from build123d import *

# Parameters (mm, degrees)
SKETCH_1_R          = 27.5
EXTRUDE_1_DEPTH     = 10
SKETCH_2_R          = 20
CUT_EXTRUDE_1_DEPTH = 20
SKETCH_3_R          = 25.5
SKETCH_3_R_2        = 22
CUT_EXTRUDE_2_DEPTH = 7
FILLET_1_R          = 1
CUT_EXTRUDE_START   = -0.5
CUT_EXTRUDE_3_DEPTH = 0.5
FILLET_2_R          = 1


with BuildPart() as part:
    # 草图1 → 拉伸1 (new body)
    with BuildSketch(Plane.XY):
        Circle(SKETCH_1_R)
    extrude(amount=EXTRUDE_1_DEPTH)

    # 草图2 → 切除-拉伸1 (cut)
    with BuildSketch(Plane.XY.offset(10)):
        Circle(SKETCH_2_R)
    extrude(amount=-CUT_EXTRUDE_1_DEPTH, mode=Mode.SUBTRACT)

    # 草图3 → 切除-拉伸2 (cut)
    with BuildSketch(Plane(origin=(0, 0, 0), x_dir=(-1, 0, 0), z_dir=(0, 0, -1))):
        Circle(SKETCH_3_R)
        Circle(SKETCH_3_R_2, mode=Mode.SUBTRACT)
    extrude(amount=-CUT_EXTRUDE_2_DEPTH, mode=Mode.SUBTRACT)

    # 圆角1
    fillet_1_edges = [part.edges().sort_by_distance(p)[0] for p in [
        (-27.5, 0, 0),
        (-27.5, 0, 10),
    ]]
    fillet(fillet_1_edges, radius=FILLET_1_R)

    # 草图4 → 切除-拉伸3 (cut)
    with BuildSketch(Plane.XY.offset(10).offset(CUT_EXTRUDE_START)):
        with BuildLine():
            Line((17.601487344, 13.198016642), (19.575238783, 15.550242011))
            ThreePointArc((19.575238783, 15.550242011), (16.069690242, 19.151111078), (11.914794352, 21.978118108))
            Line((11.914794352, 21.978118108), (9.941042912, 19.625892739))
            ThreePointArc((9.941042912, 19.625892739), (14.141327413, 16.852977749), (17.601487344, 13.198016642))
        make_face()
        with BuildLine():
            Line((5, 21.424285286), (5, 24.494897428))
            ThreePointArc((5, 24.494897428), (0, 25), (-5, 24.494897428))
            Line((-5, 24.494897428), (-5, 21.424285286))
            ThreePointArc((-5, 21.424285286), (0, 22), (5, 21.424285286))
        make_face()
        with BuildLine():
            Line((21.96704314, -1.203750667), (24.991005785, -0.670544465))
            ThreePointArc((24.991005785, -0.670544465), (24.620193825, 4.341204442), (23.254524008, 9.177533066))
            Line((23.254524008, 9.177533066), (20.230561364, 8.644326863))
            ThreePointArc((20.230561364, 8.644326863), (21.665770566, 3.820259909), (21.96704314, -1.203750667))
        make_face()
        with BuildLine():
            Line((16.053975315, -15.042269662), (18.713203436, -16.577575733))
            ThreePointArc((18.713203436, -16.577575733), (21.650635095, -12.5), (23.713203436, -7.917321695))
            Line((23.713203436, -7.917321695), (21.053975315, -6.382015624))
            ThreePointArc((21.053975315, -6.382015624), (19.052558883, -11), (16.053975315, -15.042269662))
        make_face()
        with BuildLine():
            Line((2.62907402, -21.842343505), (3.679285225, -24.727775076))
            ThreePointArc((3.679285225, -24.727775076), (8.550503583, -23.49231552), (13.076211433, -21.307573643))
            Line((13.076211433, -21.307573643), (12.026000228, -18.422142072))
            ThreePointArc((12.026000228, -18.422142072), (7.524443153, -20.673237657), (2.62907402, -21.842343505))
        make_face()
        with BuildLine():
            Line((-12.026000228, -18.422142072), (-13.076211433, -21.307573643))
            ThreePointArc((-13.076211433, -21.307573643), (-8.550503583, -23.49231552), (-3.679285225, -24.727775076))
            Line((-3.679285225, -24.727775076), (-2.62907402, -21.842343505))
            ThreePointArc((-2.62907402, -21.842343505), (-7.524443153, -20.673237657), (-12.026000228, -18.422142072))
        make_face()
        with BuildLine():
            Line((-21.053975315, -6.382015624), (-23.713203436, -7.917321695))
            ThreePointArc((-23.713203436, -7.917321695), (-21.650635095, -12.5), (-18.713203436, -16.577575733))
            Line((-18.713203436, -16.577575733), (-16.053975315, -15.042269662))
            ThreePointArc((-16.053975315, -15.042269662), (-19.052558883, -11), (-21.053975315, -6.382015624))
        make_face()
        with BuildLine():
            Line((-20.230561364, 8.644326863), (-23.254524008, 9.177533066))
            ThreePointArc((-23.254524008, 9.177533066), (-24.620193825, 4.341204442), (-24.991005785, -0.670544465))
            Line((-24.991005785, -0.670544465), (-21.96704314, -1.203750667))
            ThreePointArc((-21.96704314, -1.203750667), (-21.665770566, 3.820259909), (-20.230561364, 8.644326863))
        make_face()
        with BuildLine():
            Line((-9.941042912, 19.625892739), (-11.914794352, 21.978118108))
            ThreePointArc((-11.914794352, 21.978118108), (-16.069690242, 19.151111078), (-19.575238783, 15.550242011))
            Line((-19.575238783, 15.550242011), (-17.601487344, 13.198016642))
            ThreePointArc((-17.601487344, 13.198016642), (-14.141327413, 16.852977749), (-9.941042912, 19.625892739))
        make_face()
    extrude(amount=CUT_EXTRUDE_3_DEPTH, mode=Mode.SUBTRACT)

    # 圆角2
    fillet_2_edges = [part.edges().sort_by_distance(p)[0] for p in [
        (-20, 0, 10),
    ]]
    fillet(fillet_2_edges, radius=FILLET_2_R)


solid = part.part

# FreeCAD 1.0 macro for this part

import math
import FreeCAD as App
import Part
import Sketcher
Q = App.Units.Quantity


def edges_at(feature, points):
    """Names of the edges that pass closest to the given points."""
    edges = feature.Shape.Edges
    near = lambda p: min(range(len(edges)), key=lambda i: edges[i].distToShape(Part.Vertex(*p))[0])
    return sorted({f"Edge{near(p) + 1}" for p in points})

doc = App.newDocument("Part")
body = doc.addObject("PartDesign::Body", "Body")

sketch1 = body.newObject("Sketcher::SketchObject", "Sketch")
sketch1.AttachmentSupport = (doc.getObject("XY_Plane"), [""])
sketch1.MapMode = "FlatFace"
sketch1.addGeometry(Part.Circle(App.Vector(0, 0, 0), App.Vector(0, 0, 1), 28), False)
sketch1.addConstraint(Sketcher.Constraint("Coincident", 0, 3, -1, 1))
sketch1.addConstraint(Sketcher.Constraint("Diameter", 0, 55.0))
pad1 = body.newObject("PartDesign::Pad", "Pad")
pad1.Profile = sketch1
pad1.Length = 10

sketch2 = body.newObject("Sketcher::SketchObject", "Sketch001")
sketch2.AttachmentSupport = (doc.getObject("XY_Plane"), [""])
sketch2.MapMode = "FlatFace"
sketch2.AttachmentOffset = App.Placement(App.Vector(0, 0, 10), App.Rotation())
sketch2.addGeometry(Part.Circle(App.Vector(0, 0, 0), App.Vector(0, 0, 1), 20), False)
sketch2.addConstraint(Sketcher.Constraint("Coincident", 0, 3, -1, 1))
sketch2.addConstraint(Sketcher.Constraint("Diameter", 0, 40.0))
pocket1 = body.newObject("PartDesign::Pocket", "Pocket")
pocket1.Profile = sketch2
pocket1.Length = 20

sketch3 = body.newObject("Sketcher::SketchObject", "Sketch002")
sketch3.AttachmentSupport = (doc.getObject("XY_Plane"), [""])
sketch3.MapMode = "FlatFace"
sketch3.addGeometry(Part.Circle(App.Vector(0, 0, 0), App.Vector(0, 0, 1), 26), False)
sketch3.addGeometry(Part.Circle(App.Vector(0, 0, 0), App.Vector(0, 0, 1), 22), False)
sketch3.addConstraint(Sketcher.Constraint("Coincident", 0, 3, -1, 1))
sketch3.addConstraint(Sketcher.Constraint("Coincident", 1, 3, -1, 1))
sketch3.addConstraint(Sketcher.Constraint("Diameter", 0, 51.0))
sketch3.addConstraint(Sketcher.Constraint("Diameter", 1, 44.0))
pocket2 = body.newObject("PartDesign::Pocket", "Pocket001")
pocket2.Profile = sketch3
pocket2.Length = 7
pocket2.Reversed = True
doc.recompute()

fillet = body.newObject("PartDesign::Fillet", "Fillet")
fillet.Base = (pocket2, edges_at(pocket2, [(-27.5, 0, 0), (-27.5, 0, 10)]))
fillet.Radius = 1

sketch4 = body.newObject("Sketcher::SketchObject", "Sketch003")
sketch4.AttachmentSupport = (doc.getObject("XY_Plane"), [""])
sketch4.MapMode = "FlatFace"
sketch4.AttachmentOffset = App.Placement(App.Vector(0, 0, 9.5), App.Rotation())
sketch4.addGeometry(Part.LineSegment(App.Vector(17.6, 13.2, 0), App.Vector(19.6, 15.6, 0)), False)
sketch4.addGeometry(Part.ArcOfCircle(Part.Circle(App.Vector(0, 0, 0), App.Vector(0, 0, 1), 25), math.radians(38), math.radians(62)), False)
sketch4.addGeometry(Part.LineSegment(App.Vector(11.9, 22, 0), App.Vector(9.9, 19.6, 0)), False)
sketch4.addGeometry(Part.ArcOfCircle(Part.Circle(App.Vector(0, 0, 0), App.Vector(0, 0, 1), 22), math.radians(37), math.radians(63)), False)
sketch4.addGeometry(Part.LineSegment(App.Vector(5, 21.4, 0), App.Vector(5, 24.5, 0)), False)
sketch4.addGeometry(Part.ArcOfCircle(Part.Circle(App.Vector(0, 0, 0), App.Vector(0, 0, 1), 25), math.radians(78), math.radians(102)), False)
sketch4.addGeometry(Part.LineSegment(App.Vector(-5, 24.5, 0), App.Vector(-5, 21.4, 0)), False)
sketch4.addGeometry(Part.ArcOfCircle(Part.Circle(App.Vector(0, 0, 0), App.Vector(0, 0, 1), 22), math.radians(77), math.radians(103)), False)
sketch4.addGeometry(Part.LineSegment(App.Vector(22, -1.2, 0), App.Vector(25, -0.7, 0)), False)
sketch4.addGeometry(Part.ArcOfCircle(Part.Circle(App.Vector(0, 0, 0), App.Vector(0, 0, 1), 25), math.radians(-2), math.radians(22)), False)
sketch4.addGeometry(Part.LineSegment(App.Vector(23.3, 9.2, 0), App.Vector(20.2, 8.6, 0)), False)
sketch4.addGeometry(Part.ArcOfCircle(Part.Circle(App.Vector(0, 0, 0), App.Vector(0, 0, 1), 22), math.radians(-3), math.radians(23)), False)
sketch4.addGeometry(Part.LineSegment(App.Vector(16.1, -15, 0), App.Vector(18.7, -16.6, 0)), False)
sketch4.addGeometry(Part.ArcOfCircle(Part.Circle(App.Vector(0, 0, 0), App.Vector(0, 0, 1), 25), math.radians(-42), math.radians(-18)), False)
sketch4.addGeometry(Part.LineSegment(App.Vector(23.7, -7.9, 0), App.Vector(21.1, -6.4, 0)), False)
sketch4.addGeometry(Part.ArcOfCircle(Part.Circle(App.Vector(0, 0, 0), App.Vector(0, 0, 1), 22), math.radians(-43), math.radians(-17)), False)
sketch4.addGeometry(Part.LineSegment(App.Vector(2.6, -21.8, 0), App.Vector(3.7, -24.7, 0)), False)
sketch4.addGeometry(Part.ArcOfCircle(Part.Circle(App.Vector(0, 0, 0), App.Vector(0, 0, 1), 25), math.radians(-82), math.radians(-58)), False)
sketch4.addGeometry(Part.LineSegment(App.Vector(13.1, -21.3, 0), App.Vector(12, -18.4, 0)), False)
sketch4.addGeometry(Part.ArcOfCircle(Part.Circle(App.Vector(0, 0, 0), App.Vector(0, 0, 1), 22), math.radians(-83), math.radians(-57)), False)
sketch4.addGeometry(Part.LineSegment(App.Vector(-12, -18.4, 0), App.Vector(-13.1, -21.3, 0)), False)
sketch4.addGeometry(Part.ArcOfCircle(Part.Circle(App.Vector(0, 0, 0), App.Vector(0, 0, 1), 25), math.radians(-122), math.radians(-98)), False)
sketch4.addGeometry(Part.LineSegment(App.Vector(-3.7, -24.7, 0), App.Vector(-2.6, -21.8, 0)), False)
sketch4.addGeometry(Part.ArcOfCircle(Part.Circle(App.Vector(0, 0, 0), App.Vector(0, 0, 1), 22), math.radians(-123), math.radians(-97)), False)
sketch4.addGeometry(Part.LineSegment(App.Vector(-21.1, -6.4, 0), App.Vector(-23.7, -7.9, 0)), False)
sketch4.addGeometry(Part.ArcOfCircle(Part.Circle(App.Vector(0, 0, 0), App.Vector(0, 0, 1), 25), math.radians(-162), math.radians(-138)), False)
sketch4.addGeometry(Part.LineSegment(App.Vector(-18.7, -16.6, 0), App.Vector(-16.1, -15, 0)), False)
sketch4.addGeometry(Part.ArcOfCircle(Part.Circle(App.Vector(0, 0, 0), App.Vector(0, 0, 1), 22), math.radians(-163), math.radians(-137)), False)
sketch4.addGeometry(Part.LineSegment(App.Vector(-20.2, 8.6, 0), App.Vector(-23.3, 9.2, 0)), False)
sketch4.addGeometry(Part.ArcOfCircle(Part.Circle(App.Vector(0, 0, 0), App.Vector(0, 0, 1), 25), math.radians(158), math.radians(182)), False)
sketch4.addGeometry(Part.LineSegment(App.Vector(-25, -0.7, 0), App.Vector(-22, -1.2, 0)), False)
sketch4.addGeometry(Part.ArcOfCircle(Part.Circle(App.Vector(0, 0, 0), App.Vector(0, 0, 1), 22), math.radians(157), math.radians(183)), False)
sketch4.addGeometry(Part.LineSegment(App.Vector(-9.9, 19.6, 0), App.Vector(-11.9, 22, 0)), False)
sketch4.addGeometry(Part.ArcOfCircle(Part.Circle(App.Vector(0, 0, 0), App.Vector(0, 0, 1), 25), math.radians(118), math.radians(142)), False)
sketch4.addGeometry(Part.LineSegment(App.Vector(-19.6, 15.6, 0), App.Vector(-17.6, 13.2, 0)), False)
sketch4.addGeometry(Part.ArcOfCircle(Part.Circle(App.Vector(0, 0, 0), App.Vector(0, 0, 1), 22), math.radians(117), math.radians(143)), False)
sketch4.addConstraint(Sketcher.Constraint("Coincident", 0, 2, 1, 1))
sketch4.addConstraint(Sketcher.Constraint("Coincident", 1, 2, 2, 1))
sketch4.addConstraint(Sketcher.Constraint("Coincident", 2, 2, 3, 2))
sketch4.addConstraint(Sketcher.Constraint("Coincident", 3, 1, 0, 1))
sketch4.addConstraint(Sketcher.Constraint("Coincident", 4, 2, 5, 1))
sketch4.addConstraint(Sketcher.Constraint("Coincident", 5, 2, 6, 1))
sketch4.addConstraint(Sketcher.Constraint("Coincident", 6, 2, 7, 2))
sketch4.addConstraint(Sketcher.Constraint("Coincident", 7, 1, 4, 1))
sketch4.addConstraint(Sketcher.Constraint("Coincident", 8, 2, 9, 1))
sketch4.addConstraint(Sketcher.Constraint("Coincident", 9, 2, 10, 1))
sketch4.addConstraint(Sketcher.Constraint("Coincident", 10, 2, 11, 2))
sketch4.addConstraint(Sketcher.Constraint("Coincident", 11, 1, 8, 1))
sketch4.addConstraint(Sketcher.Constraint("Coincident", 12, 2, 13, 1))
sketch4.addConstraint(Sketcher.Constraint("Coincident", 13, 2, 14, 1))
sketch4.addConstraint(Sketcher.Constraint("Coincident", 14, 2, 15, 2))
sketch4.addConstraint(Sketcher.Constraint("Coincident", 15, 1, 12, 1))
sketch4.addConstraint(Sketcher.Constraint("Coincident", 16, 2, 17, 1))
sketch4.addConstraint(Sketcher.Constraint("Coincident", 17, 2, 18, 1))
sketch4.addConstraint(Sketcher.Constraint("Coincident", 18, 2, 19, 2))
sketch4.addConstraint(Sketcher.Constraint("Coincident", 19, 1, 16, 1))
sketch4.addConstraint(Sketcher.Constraint("Coincident", 20, 2, 21, 1))
sketch4.addConstraint(Sketcher.Constraint("Coincident", 21, 2, 22, 1))
sketch4.addConstraint(Sketcher.Constraint("Coincident", 22, 2, 23, 2))
sketch4.addConstraint(Sketcher.Constraint("Coincident", 23, 1, 20, 1))
sketch4.addConstraint(Sketcher.Constraint("Coincident", 24, 2, 25, 1))
sketch4.addConstraint(Sketcher.Constraint("Coincident", 25, 2, 26, 1))
sketch4.addConstraint(Sketcher.Constraint("Coincident", 26, 2, 27, 2))
sketch4.addConstraint(Sketcher.Constraint("Coincident", 27, 1, 24, 1))
sketch4.addConstraint(Sketcher.Constraint("Coincident", 28, 2, 29, 1))
sketch4.addConstraint(Sketcher.Constraint("Coincident", 29, 2, 30, 1))
sketch4.addConstraint(Sketcher.Constraint("Coincident", 30, 2, 31, 2))
sketch4.addConstraint(Sketcher.Constraint("Coincident", 31, 1, 28, 1))
sketch4.addConstraint(Sketcher.Constraint("Coincident", 32, 2, 33, 1))
sketch4.addConstraint(Sketcher.Constraint("Coincident", 33, 2, 34, 1))
sketch4.addConstraint(Sketcher.Constraint("Coincident", 34, 2, 35, 2))
sketch4.addConstraint(Sketcher.Constraint("Coincident", 35, 1, 32, 1))
sketch4.addConstraint(Sketcher.Constraint("Vertical", 4))
sketch4.addConstraint(Sketcher.Constraint("Vertical", 6))
sketch4.addConstraint(Sketcher.Constraint("Coincident", 1, 3, -1, 1))
sketch4.addConstraint(Sketcher.Constraint("Coincident", 3, 3, -1, 1))
sketch4.addConstraint(Sketcher.Constraint("Coincident", 5, 3, -1, 1))
sketch4.addConstraint(Sketcher.Constraint("Coincident", 7, 3, -1, 1))
sketch4.addConstraint(Sketcher.Constraint("Coincident", 9, 3, -1, 1))
sketch4.addConstraint(Sketcher.Constraint("Coincident", 11, 3, -1, 1))
sketch4.addConstraint(Sketcher.Constraint("Coincident", 13, 3, -1, 1))
sketch4.addConstraint(Sketcher.Constraint("Coincident", 15, 3, -1, 1))
sketch4.addConstraint(Sketcher.Constraint("Coincident", 17, 3, -1, 1))
sketch4.addConstraint(Sketcher.Constraint("Coincident", 19, 3, -1, 1))
sketch4.addConstraint(Sketcher.Constraint("Coincident", 21, 3, -1, 1))
sketch4.addConstraint(Sketcher.Constraint("Coincident", 23, 3, -1, 1))
sketch4.addConstraint(Sketcher.Constraint("Coincident", 25, 3, -1, 1))
sketch4.addConstraint(Sketcher.Constraint("Coincident", 27, 3, -1, 1))
sketch4.addConstraint(Sketcher.Constraint("Coincident", 29, 3, -1, 1))
sketch4.addConstraint(Sketcher.Constraint("Coincident", 31, 3, -1, 1))
sketch4.addConstraint(Sketcher.Constraint("Coincident", 33, 3, -1, 1))
sketch4.addConstraint(Sketcher.Constraint("Coincident", 35, 3, -1, 1))
sketch4.addConstraint(Sketcher.Constraint("Equal", 1, 5))
sketch4.addConstraint(Sketcher.Constraint("Equal", 3, 7))
sketch4.addConstraint(Sketcher.Constraint("Equal", 5, 9))
sketch4.addConstraint(Sketcher.Constraint("Equal", 7, 11))
sketch4.addConstraint(Sketcher.Constraint("Equal", 9, 13))
sketch4.addConstraint(Sketcher.Constraint("Equal", 11, 15))
sketch4.addConstraint(Sketcher.Constraint("Equal", 13, 17))
sketch4.addConstraint(Sketcher.Constraint("Equal", 15, 19))
sketch4.addConstraint(Sketcher.Constraint("Equal", 17, 21))
sketch4.addConstraint(Sketcher.Constraint("Equal", 19, 23))
sketch4.addConstraint(Sketcher.Constraint("Equal", 21, 25))
sketch4.addConstraint(Sketcher.Constraint("Equal", 23, 27))
sketch4.addConstraint(Sketcher.Constraint("Equal", 25, 29))
sketch4.addConstraint(Sketcher.Constraint("Equal", 27, 31))
sketch4.addConstraint(Sketcher.Constraint("Equal", 29, 33))
sketch4.addConstraint(Sketcher.Constraint("Equal", 31, 35))
sketch4.addConstraint(Sketcher.Constraint("Parallel", 0, 2))
sketch4.addConstraint(Sketcher.Constraint("Parallel", 8, 10))
sketch4.addConstraint(Sketcher.Constraint("Parallel", 12, 14))
sketch4.addConstraint(Sketcher.Constraint("Parallel", 16, 18))
sketch4.addConstraint(Sketcher.Constraint("Parallel", 20, 22))
sketch4.addConstraint(Sketcher.Constraint("Parallel", 24, 26))
sketch4.addConstraint(Sketcher.Constraint("Parallel", 28, 30))
sketch4.addConstraint(Sketcher.Constraint("Parallel", 32, 34))
sketch4.addConstraint(Sketcher.Constraint("Horizontal", 4, 2, 5, 2))
sketch4.addConstraint(Sketcher.Constraint("Horizontal", 17, 2, 20, 2))
sketch4.addConstraint(Sketcher.Constraint("Horizontal", 16, 2, 21, 2))
sketch4.addConstraint(Sketcher.Constraint("Horizontal", 19, 1, 22, 2))
sketch4.addConstraint(Sketcher.Constraint("Horizontal", 13, 2, 24, 2))
sketch4.addConstraint(Sketcher.Constraint("Horizontal", 12, 2, 25, 2))
sketch4.addConstraint(Sketcher.Constraint("Horizontal", 15, 1, 26, 2))
sketch4.addConstraint(Sketcher.Constraint("Horizontal", 9, 2, 28, 2))
sketch4.addConstraint(Sketcher.Constraint("Horizontal", 8, 2, 29, 2))
sketch4.addConstraint(Sketcher.Constraint("Horizontal", 11, 1, 30, 2))
sketch4.addConstraint(Sketcher.Constraint("Horizontal", 1, 2, 32, 2))
sketch4.addConstraint(Sketcher.Constraint("Horizontal", 0, 2, 33, 2))
sketch4.addConstraint(Sketcher.Constraint("Horizontal", 3, 1, 34, 2))
sketch4.addConstraint(Sketcher.Constraint("Equal", 0, 2))
sketch4.addConstraint(Sketcher.Constraint("Equal", 2, 8))
sketch4.addConstraint(Sketcher.Constraint("Equal", 8, 10))
sketch4.addConstraint(Sketcher.Constraint("Equal", 10, 12))
sketch4.addConstraint(Sketcher.Constraint("Equal", 12, 14))
sketch4.addConstraint(Sketcher.Constraint("Equal", 14, 16))
sketch4.addConstraint(Sketcher.Constraint("Equal", 16, 18))
sketch4.addConstraint(Sketcher.Constraint("Radius", 1, 25.0))
sketch4.addConstraint(Sketcher.Constraint("Radius", 3, 22.0))
sketch4.addConstraint(Sketcher.Constraint("Angle", 0, Q("50 deg")))
sketch4.addConstraint(Sketcher.Constraint("Angle", 8, Q("10 deg")))
sketch4.addConstraint(Sketcher.Constraint("Angle", 12, Q("-30 deg")))
sketch4.addConstraint(Sketcher.Constraint("Angle", 16, Q("-70 deg")))
sketch4.addConstraint(Sketcher.Constraint("DistanceX", -1, 1, 4, 2, 5.0))
sketch4.addConstraint(Sketcher.Constraint("DistanceX", 12, 2, 13, 2, 5.0))
pocket3 = body.newObject("PartDesign::Pocket", "Pocket002")
pocket3.Profile = sketch4
pocket3.Length = 0.5
pocket3.Reversed = True
doc.recompute()

fillet2 = body.newObject("PartDesign::Fillet", "Fillet001")
fillet2.Base = (pocket3, edges_at(pocket3, [(-20, 0, 10)]))
fillet2.Radius = 1

doc.recompute()
